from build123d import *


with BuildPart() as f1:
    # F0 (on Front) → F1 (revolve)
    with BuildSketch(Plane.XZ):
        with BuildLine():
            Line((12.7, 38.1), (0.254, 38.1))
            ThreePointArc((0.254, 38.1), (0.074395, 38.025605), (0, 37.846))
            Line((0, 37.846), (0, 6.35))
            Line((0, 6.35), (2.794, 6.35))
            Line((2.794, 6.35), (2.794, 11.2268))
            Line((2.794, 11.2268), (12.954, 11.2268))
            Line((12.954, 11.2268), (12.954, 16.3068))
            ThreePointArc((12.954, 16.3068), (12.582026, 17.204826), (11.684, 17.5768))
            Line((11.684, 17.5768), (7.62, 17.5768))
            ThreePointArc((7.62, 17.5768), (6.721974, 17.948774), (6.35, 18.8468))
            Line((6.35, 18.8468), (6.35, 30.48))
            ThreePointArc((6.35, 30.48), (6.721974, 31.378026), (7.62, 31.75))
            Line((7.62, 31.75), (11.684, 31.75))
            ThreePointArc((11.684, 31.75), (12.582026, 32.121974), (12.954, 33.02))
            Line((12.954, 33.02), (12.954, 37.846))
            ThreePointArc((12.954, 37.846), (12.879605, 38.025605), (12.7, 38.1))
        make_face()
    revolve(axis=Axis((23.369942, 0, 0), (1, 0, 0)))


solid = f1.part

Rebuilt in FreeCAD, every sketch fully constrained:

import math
import FreeCAD as App
import Part
import Sketcher
Q = App.Units.Quantity

doc = App.newDocument("Part")
body = doc.addObject("PartDesign::Body", "Body")

# Sketch on XZ plane
sketch1 = doc.addObject("Sketcher::SketchObject", "Sketch")
body.addObject(sketch1)
sketch1.AttachmentSupport = (doc.XZ_Plane, [""])
sketch1.MapMode = "FlatFace"
sketch1.addGeometry([
    Part.LineSegment(App.Vector(12.7, 38.1, 0), App.Vector(0.254, 38.1, 0)),  # 0
    Part.ArcOfCircle(Part.Circle(App.Vector(0.254, 37.846, 0), App.Vector(0, 0, 1), 0.254), math.radians(90.000094), math.radians(179.999906)),  # 1
    Part.LineSegment(App.Vector(0, 37.846, 0), App.Vector(0, 6.35, 0)),  # 2
    Part.LineSegment(App.Vector(0, 6.35, 0), App.Vector(2.794, 6.35, 0)),  # 3
    Part.LineSegment(App.Vector(2.794, 6.35, 0), App.Vector(2.794, 11.2268, 0)),  # 4
    Part.LineSegment(App.Vector(2.794, 11.2268, 0), App.Vector(12.954, 11.2268, 0)),  # 5
    Part.LineSegment(App.Vector(12.954, 11.2268, 0), App.Vector(12.954, 16.3068, 0)),  # 6
    Part.ArcOfCircle(Part.Circle(App.Vector(11.684001, 16.306801, 0), App.Vector(0, 0, 1), 1.269999), math.radians(-0.00006), math.radians(90.00006)),  # 7
    Part.LineSegment(App.Vector(11.684, 17.5768, 0), App.Vector(7.62, 17.5768, 0)),  # 8
    Part.ArcOfCircle(Part.Circle(App.Vector(7.619999, 18.846799, 0), App.Vector(0, 0, 1), 1.269999), math.radians(179.99994), math.radians(270.00006)),  # 9
    Part.LineSegment(App.Vector(6.35, 18.8468, 0), App.Vector(6.35, 30.48, 0)),  # 10
    Part.ArcOfCircle(Part.Circle(App.Vector(7.619999, 30.480001, 0), App.Vector(0, 0, 1), 1.269999), math.radians(89.99994), math.radians(180.00006)),  # 11
    Part.LineSegment(App.Vector(7.62, 31.75, 0), App.Vector(11.684, 31.75, 0)),  # 12
    Part.ArcOfCircle(Part.Circle(App.Vector(11.684001, 33.019999, 0), App.Vector(0, 0, 1), 1.269999), math.radians(-90.00006), math.radians(0.00006)),  # 13
    Part.LineSegment(App.Vector(12.954, 33.02, 0), App.Vector(12.954, 37.846, 0)),  # 14
    Part.ArcOfCircle(Part.Circle(App.Vector(12.7, 37.846, 0), App.Vector(0, 0, 1), 0.254), math.radians(0.000094), math.radians(89.999906)),  # 15
], False)
sketch1.addConstraint([
    Sketcher.Constraint("Tangent", 0, 2, 1, 1),
    Sketcher.Constraint("Tangent", 1, 2, 2, 1),
    Sketcher.Constraint("Coincident", 2, 2, 3, 1),
    Sketcher.Constraint("Coincident", 3, 2, 4, 1),
    Sketcher.Constraint("Coincident", 4, 2, 5, 1),
    Sketcher.Constraint("Coincident", 5, 2, 6, 1),
    Sketcher.Constraint("Tangent", 6, 2, 7, 1),
    Sketcher.Constraint("Tangent", 7, 2, 8, 1),
    Sketcher.Constraint("Tangent", 8, 2, 9, 2),
    Sketcher.Constraint("Tangent", 9, 1, 10, 1),
    Sketcher.Constraint("Tangent", 10, 2, 11, 2),
    Sketcher.Constraint("Tangent", 11, 1, 12, 1),
    Sketcher.Constraint("Tangent", 12, 2, 13, 1),
    Sketcher.Constraint("Tangent", 13, 2, 14, 1),
    Sketcher.Constraint("Tangent", 14, 2, 15, 1),
    Sketcher.Constraint("Tangent", 15, 2, 0, 1),
    Sketcher.Constraint("Horizontal", 0),
    Sketcher.Constraint("Vertical", 2),
    Sketcher.Constraint("Horizontal", 3),
    Sketcher.Constraint("Vertical", 4),
    Sketcher.Constraint("Horizontal", 5),
    Sketcher.Constraint("Vertical", 6),
    Sketcher.Constraint("Horizontal", 8),
    Sketcher.Constraint("Vertical", 10),
    Sketcher.Constraint("Horizontal", 12),
    Sketcher.Constraint("Vertical", 14),
    Sketcher.Constraint("Equal", 7, 9),
    Sketcher.Constraint("Equal", 9, 11),
    Sketcher.Constraint("Equal", 11, 13),
    Sketcher.Constraint("Equal", 1, 15),
    Sketcher.Constraint("PointOnObject", 1, 2, -2),
    Sketcher.Constraint("Vertical", 7, 3, 13, 3),
    Sketcher.Constraint("Radius", 1, Q("0.01 in")),
    Sketcher.Constraint("Radius", 7, Q("0.0499999 in")),
    Sketcher.Constraint("DistanceX", 5, 1, 5, 2, Q("0.4 in")),
    Sketcher.Constraint("DistanceY", 6, 1, 6, 2, Q("0.2 in")),
    Sketcher.Constraint("DistanceX", 0, 2, 0, 1, Q("0.49 in")),
    Sketcher.Constraint("DistanceX", 8, 2, 8, 1, Q("0.16 in")),
    Sketcher.Constraint("DistanceY", 2, 2, 2, 1, Q("1.24 in")),
    Sketcher.Constraint("DistanceY", 14, 1, 14, 2, Q("0.19 in")),
    Sketcher.Constraint("DistanceY", -1, 1, 11, 3, Q("1.2000001 in")),
    Sketcher.Constraint("DistanceY", 4, 1, 4, 2, Q("0.192 in")),
])
revolution = doc.addObject("PartDesign::Revolution", "Revolution")
body.addObject(revolution)
revolution.Profile = sketch1
revolution.ReferenceAxis = (sketch1, ["H_Axis"])
revolution.Angle = 360

doc.recompute()
